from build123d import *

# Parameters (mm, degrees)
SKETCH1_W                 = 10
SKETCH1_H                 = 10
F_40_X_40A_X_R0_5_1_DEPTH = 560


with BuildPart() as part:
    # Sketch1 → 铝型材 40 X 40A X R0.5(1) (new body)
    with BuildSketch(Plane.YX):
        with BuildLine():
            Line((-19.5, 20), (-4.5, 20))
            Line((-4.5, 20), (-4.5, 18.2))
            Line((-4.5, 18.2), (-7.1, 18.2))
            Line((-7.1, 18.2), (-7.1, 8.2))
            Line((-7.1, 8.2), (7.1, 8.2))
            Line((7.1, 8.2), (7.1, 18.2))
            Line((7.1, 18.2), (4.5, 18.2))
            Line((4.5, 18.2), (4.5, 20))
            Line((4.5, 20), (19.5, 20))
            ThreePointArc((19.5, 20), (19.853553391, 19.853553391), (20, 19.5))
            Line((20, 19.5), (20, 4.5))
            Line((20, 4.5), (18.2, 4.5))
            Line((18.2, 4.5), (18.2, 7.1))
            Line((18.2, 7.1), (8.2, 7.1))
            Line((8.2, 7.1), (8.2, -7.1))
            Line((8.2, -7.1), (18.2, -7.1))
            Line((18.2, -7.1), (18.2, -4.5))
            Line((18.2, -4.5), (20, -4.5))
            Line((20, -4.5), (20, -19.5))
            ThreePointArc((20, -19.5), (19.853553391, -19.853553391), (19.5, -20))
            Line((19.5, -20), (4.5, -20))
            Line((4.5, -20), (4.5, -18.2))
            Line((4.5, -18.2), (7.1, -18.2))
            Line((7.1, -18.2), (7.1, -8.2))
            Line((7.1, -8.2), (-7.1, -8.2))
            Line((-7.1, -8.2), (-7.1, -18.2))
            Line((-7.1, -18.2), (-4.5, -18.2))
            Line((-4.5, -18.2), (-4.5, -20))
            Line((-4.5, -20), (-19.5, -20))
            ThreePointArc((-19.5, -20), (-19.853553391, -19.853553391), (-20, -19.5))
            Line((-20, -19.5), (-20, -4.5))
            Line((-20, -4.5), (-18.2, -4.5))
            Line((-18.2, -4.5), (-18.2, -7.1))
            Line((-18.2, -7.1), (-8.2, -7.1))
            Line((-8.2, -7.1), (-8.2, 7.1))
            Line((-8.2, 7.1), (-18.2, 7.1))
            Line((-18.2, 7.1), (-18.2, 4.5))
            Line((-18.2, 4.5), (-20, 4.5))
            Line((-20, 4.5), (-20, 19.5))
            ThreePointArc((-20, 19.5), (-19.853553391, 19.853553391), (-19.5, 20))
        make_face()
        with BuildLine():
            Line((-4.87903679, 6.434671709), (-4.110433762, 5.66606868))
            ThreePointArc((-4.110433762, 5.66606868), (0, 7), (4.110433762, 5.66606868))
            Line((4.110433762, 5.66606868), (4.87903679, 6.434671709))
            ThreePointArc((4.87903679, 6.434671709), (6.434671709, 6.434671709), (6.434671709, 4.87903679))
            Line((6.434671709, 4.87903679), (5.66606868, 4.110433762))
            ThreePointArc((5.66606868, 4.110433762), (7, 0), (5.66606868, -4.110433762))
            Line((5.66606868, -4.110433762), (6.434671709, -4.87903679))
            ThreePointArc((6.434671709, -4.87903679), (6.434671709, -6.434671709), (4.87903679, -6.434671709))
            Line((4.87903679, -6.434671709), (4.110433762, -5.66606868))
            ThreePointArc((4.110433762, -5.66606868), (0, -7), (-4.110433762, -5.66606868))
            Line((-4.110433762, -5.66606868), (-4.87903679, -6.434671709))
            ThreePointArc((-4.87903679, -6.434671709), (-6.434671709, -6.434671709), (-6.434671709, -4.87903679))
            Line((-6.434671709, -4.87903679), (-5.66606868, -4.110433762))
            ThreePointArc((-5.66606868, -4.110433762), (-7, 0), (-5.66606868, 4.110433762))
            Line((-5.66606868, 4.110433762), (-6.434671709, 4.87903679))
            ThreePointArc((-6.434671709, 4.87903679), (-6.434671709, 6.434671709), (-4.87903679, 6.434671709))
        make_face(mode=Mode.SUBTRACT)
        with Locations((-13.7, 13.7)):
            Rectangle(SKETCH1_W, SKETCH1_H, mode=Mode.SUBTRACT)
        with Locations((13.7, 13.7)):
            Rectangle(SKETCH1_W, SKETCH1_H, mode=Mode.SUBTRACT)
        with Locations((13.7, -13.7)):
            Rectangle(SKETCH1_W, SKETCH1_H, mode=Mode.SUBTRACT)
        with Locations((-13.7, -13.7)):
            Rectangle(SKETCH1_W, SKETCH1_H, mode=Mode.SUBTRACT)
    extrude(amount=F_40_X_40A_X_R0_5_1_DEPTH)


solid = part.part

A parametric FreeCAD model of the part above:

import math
import FreeCAD as App
import Part
import Sketcher
from FreeCAD import Vector
Q = App.Units.Quantity

doc = App.newDocument("Part")
body = doc.addObject("PartDesign::Body", "Body")

# Sketch on XY plane
sketch1 = doc.addObject("Sketcher::SketchObject", "Sketch")
body.addObject(sketch1)
sketch1.AttachmentSupport = (doc.XY_Plane, [""])
sketch1.MapMode = "FlatFace"
sketch1.addGeometry(Part.LineSegment(Vector(20, -4.5, 0), Vector(20, -19.5, 0)), False)
sketch1.addGeometry(Part.ArcOfCircle(Part.Circle(Vector(19.5, -19.5, 0), Vector(0, 0, 1), 0.5), math.radians(-90), math.radians(0)), False)
sketch1.addGeometry(Part.LineSegment(Vector(19.5, -20, 0), Vector(4.5, -20, 0)), False)
sketch1.addGeometry(Part.LineSegment(Vector(4.5, -20, 0), Vector(4.5, -18.2, 0)), False)
sketch1.addGeometry(Part.LineSegment(Vector(4.5, -18.2, 0), Vector(7.1, -18.2, 0)), False)
sketch1.addGeometry(Part.LineSegment(Vector(7.1, -18.2, 0), Vector(7.1, -8.2, 0)), False)
sketch1.addGeometry(Part.LineSegment(Vector(7.1, -8.2, 0), Vector(-7.1, -8.2, 0)), False)
sketch1.addGeometry(Part.LineSegment(Vector(-7.1, -8.2, 0), Vector(-7.1, -18.2, 0)), False)
sketch1.addGeometry(Part.LineSegment(Vector(-7.1, -18.2, 0), Vector(-4.5, -18.2, 0)), False)
sketch1.addGeometry(Part.LineSegment(Vector(-4.5, -18.2, 0), Vector(-4.5, -20, 0)), False)
sketch1.addGeometry(Part.LineSegment(Vector(-4.5, -20, 0), Vector(-19.5, -20, 0)), False)
sketch1.addGeometry(Part.ArcOfCircle(Part.Circle(Vector(-19.5, -19.5, 0), Vector(0, 0, 1), 0.5), math.radians(180), math.radians(270)), False)
sketch1.addGeometry(Part.LineSegment(Vector(-20, -19.5, 0), Vector(-20, -4.5, 0)), False)
sketch1.addGeometry(Part.LineSegment(Vector(-20, -4.5, 0), Vector(-18.2, -4.5, 0)), False)
sketch1.addGeometry(Part.LineSegment(Vector(-18.2, -4.5, 0), Vector(-18.2, -7.1, 0)), False)
sketch1.addGeometry(Part.LineSegment(Vector(-18.2, -7.1, 0), Vector(-8.2, -7.1, 0)), False)
sketch1.addGeometry(Part.LineSegment(Vector(-8.2, -7.1, 0), Vector(-8.2, 7.1, 0)), False)
sketch1.addGeometry(Part.LineSegment(Vector(-8.2, 7.1, 0), Vector(-18.2, 7.1, 0)), False)
sketch1.addGeometry(Part.LineSegment(Vector(-18.2, 7.1, 0), Vector(-18.2, 4.5, 0)), False)
sketch1.addGeometry(Part.LineSegment(Vector(-18.2, 4.5, 0), Vector(-20, 4.5, 0)), False)
sketch1.addGeometry(Part.LineSegment(Vector(-20, 4.5, 0), Vector(-20, 19.5, 0)), False)
sketch1.addGeometry(Part.ArcOfCircle(Part.Circle(Vector(-19.5, 19.5, 0), Vector(0, 0, 1), 0.5), math.radians(90), math.radians(180)), False)
sketch1.addGeometry(Part.LineSegment(Vector(-19.5, 20, 0), Vector(-4.5, 20, 0)), False)
sketch1.addGeometry(Part.LineSegment(Vector(-4.5, 20, 0), Vector(-4.5, 18.2, 0)), False)
sketch1.addGeometry(Part.LineSegment(Vector(-4.5, 18.2, 0), Vector(-7.1, 18.2, 0)), False)
sketch1.addGeometry(Part.LineSegment(Vector(-7.1, 18.2, 0), Vector(-7.1, 8.2, 0)), False)
sketch1.addGeometry(Part.LineSegment(Vector(-7.1, 8.2, 0), Vector(7.1, 8.2, 0)), False)
sketch1.addGeometry(Part.LineSegment(Vector(7.1, 8.2, 0), Vector(7.1, 18.2, 0)), False)
sketch1.addGeometry(Part.LineSegment(Vector(7.1, 18.2, 0), Vector(4.5, 18.2, 0)), False)
sketch1.addGeometry(Part.LineSegment(Vector(4.5, 18.2, 0), Vector(4.5, 20, 0)), False)
sketch1.addGeometry(Part.LineSegment(Vector(4.5, 20, 0), Vector(19.5, 20, 0)), False)
sketch1.addGeometry(Part.ArcOfCircle(Part.Circle(Vector(19.5, 19.5, 0), Vector(0, 0, 1), 0.5), math.radians(0), math.radians(90)), False)
sketch1.addGeometry(Part.LineSegment(Vector(20, 19.5, 0), Vector(20, 4.5, 0)), False)
sketch1.addGeometry(Part.LineSegment(Vector(20, 4.5, 0), Vector(18.2, 4.5, 0)), False)
sketch1.addGeometry(Part.LineSegment(Vector(18.2, 4.5, 0), Vector(18.2, 7.1, 0)), False)
sketch1.addGeometry(Part.LineSegment(Vector(18.2, 7.1, 0), Vector(8.2, 7.1, 0)), False)
sketch1.addGeometry(Part.LineSegment(Vector(8.2, 7.1, 0), Vector(8.2, -7.1, 0)), False)
sketch1.addGeometry(Part.LineSegment(Vector(8.2, -7.1, 0), Vector(18.2, -7.1, 0)), False)
sketch1.addGeometry(Part.LineSegment(Vector(18.2, -7.1, 0), Vector(18.2, -4.5, 0)), False)
sketch1.addGeometry(Part.LineSegment(Vector(18.2, -4.5, 0), Vector(20, -4.5, 0)), False)
sketch1.addGeometry(Part.LineSegment(Vector(-18.7, 8.7, 0), Vector(-8.7, 8.7, 0)), False)
sketch1.addGeometry(Part.LineSegment(Vector(-8.7, 8.7, 0), Vector(-8.7, 18.7, 0)), False)
sketch1.addGeometry(Part.LineSegment(Vector(-8.7, 18.7, 0), Vector(-18.7, 18.7, 0)), False)
sketch1.addGeometry(Part.LineSegment(Vector(-18.7, 18.7, 0), Vector(-18.7, 8.7, 0)), False)
sketch1.addGeometry(Part.LineSegment(Vector(6.434672, -4.879037, 0), Vector(5.666069, -4.110434, 0)), False)
sketch1.addGeometry(Part.ArcOfCircle(Part.Circle(Vector(0, 0, 0), Vector(0, 0, 1), 7), math.radians(-35.958904), math.radians(35.958904)), False)
sketch1.addGeometry(Part.LineSegment(Vector(5.666069, 4.110434, 0), Vector(6.434672, 4.879037, 0)), False)
sketch1.addGeometry(Part.ArcOfCircle(Part.Circle(Vector(5.656854, 5.656854, 0), Vector(0, 0, 1), 1.1), math.radians(-45), math.radians(135)), False)
sketch1.addGeometry(Part.LineSegment(Vector(4.879037, 6.434672, 0), Vector(4.110434, 5.666069, 0)), False)
sketch1.addGeometry(Part.ArcOfCircle(Part.Circle(Vector(0, 0, 0), Vector(0, 0, 1), 7), math.radians(54.041096), math.radians(125.958904)), False)
sketch1.addGeometry(Part.LineSegment(Vector(-4.110434, 5.666069, 0), Vector(-4.879037, 6.434672, 0)), False)
sketch1.addGeometry(Part.ArcOfCircle(Part.Circle(Vector(-5.656854, 5.656854, 0), Vector(0, 0, 1), 1.1), math.radians(45), math.radians(225)), False)
sketch1.addGeometry(Part.LineSegment(Vector(-6.434672, 4.879037, 0), Vector(-5.666069, 4.110434, 0)), False)
sketch1.addGeometry(Part.ArcOfCircle(Part.Circle(Vector(0, 0, 0), Vector(0, 0, 1), 7), math.radians(144.041096), math.radians(215.958904)), False)
sketch1.addGeometry(Part.LineSegment(Vector(-5.666069, -4.110434, 0), Vector(-6.434672, -4.879037, 0)), False)
sketch1.addGeometry(Part.ArcOfCircle(Part.Circle(Vector(-5.656854, -5.656854, 0), Vector(0, 0, 1), 1.1), math.radians(135), math.radians(315)), False)
sketch1.addGeometry(Part.LineSegment(Vector(-4.879037, -6.434672, 0), Vector(-4.110434, -5.666069, 0)), False)
sketch1.addGeometry(Part.ArcOfCircle(Part.Circle(Vector(0, 0, 0), Vector(0, 0, 1), 7), math.radians(-125.958904), math.radians(-54.041096)), False)
sketch1.addGeometry(Part.LineSegment(Vector(4.110434, -5.666069, 0), Vector(4.879037, -6.434672, 0)), False)
sketch1.addGeometry(Part.ArcOfCircle(Part.Circle(Vector(5.656854, -5.656854, 0), Vector(0, 0, 1), 1.1), math.radians(-135), math.radians(45)), False)
sketch1.addGeometry(Part.LineSegment(Vector(-18.7, -18.7, 0), Vector(-8.7, -18.7, 0)), False)
sketch1.addGeometry(Part.LineSegment(Vector(-8.7, -18.7, 0), Vector(-8.7, -8.7, 0)), False)
sketch1.addGeometry(Part.LineSegment(Vector(-8.7, -8.7, 0), Vector(-18.7, -8.7, 0)), False)
sketch1.addGeometry(Part.LineSegment(Vector(-18.7, -8.7, 0), Vector(-18.7, -18.7, 0)), False)
sketch1.addGeometry(Part.LineSegment(Vector(8.7, 8.7, 0), Vector(18.7, 8.7, 0)), False)
sketch1.addGeometry(Part.LineSegment(Vector(18.7, 8.7, 0), Vector(18.7, 18.7, 0)), False)
sketch1.addGeometry(Part.LineSegment(Vector(18.7, 18.7, 0), Vector(8.7, 18.7, 0)), False)
sketch1.addGeometry(Part.LineSegment(Vector(8.7, 18.7, 0), Vector(8.7, 8.7, 0)), False)
sketch1.addGeometry(Part.LineSegment(Vector(8.7, -18.7, 0), Vector(18.7, -18.7, 0)), False)
sketch1.addGeometry(Part.LineSegment(Vector(18.7, -18.7, 0), Vector(18.7, -8.7, 0)), False)
sketch1.addGeometry(Part.LineSegment(Vector(18.7, -8.7, 0), Vector(8.7, -8.7, 0)), False)
sketch1.addGeometry(Part.LineSegment(Vector(8.7, -8.7, 0), Vector(8.7, -18.7, 0)), False)
sketch1.addConstraint(Sketcher.Constraint("Tangent", 0, 2, 1, 2))
sketch1.addConstraint(Sketcher.Constraint("Tangent", 1, 1, 2, 1))
sketch1.addConstraint(Sketcher.Constraint("Coincident", 2, 2, 3, 1))
sketch1.addConstraint(Sketcher.Constraint("Coincident", 3, 2, 4, 1))
sketch1.addConstraint(Sketcher.Constraint("Coincident", 4, 2, 5, 1))
sketch1.addConstraint(Sketcher.Constraint("Coincident", 5, 2, 6, 1))
sketch1.addConstraint(Sketcher.Constraint("Coincident", 6, 2, 7, 1))
sketch1.addConstraint(Sketcher.Constraint("Coincident", 7, 2, 8, 1))
sketch1.addConstraint(Sketcher.Constraint("Coincident", 8, 2, 9, 1))
sketch1.addConstraint(Sketcher.Constraint("Coincident", 9, 2, 10, 1))
sketch1.addConstraint(Sketcher.Constraint("Tangent", 10, 2, 11, 2))
sketch1.addConstraint(Sketcher.Constraint("Tangent", 11, 1, 12, 1))
sketch1.addConstraint(Sketcher.Constraint("Coincident", 12, 2, 13, 1))
sketch1.addConstraint(Sketcher.Constraint("Coincident", 13, 2, 14, 1))
sketch1.addConstraint(Sketcher.Constraint("Coincident", 14, 2, 15, 1))
sketch1.addConstraint(Sketcher.Constraint("Coincident", 15, 2, 16, 1))
sketch1.addConstraint(Sketcher.Constraint("Coincident", 16, 2, 17, 1))
sketch1.addConstraint(Sketcher.Constraint("Coincident", 17, 2, 18, 1))
sketch1.addConstraint(Sketcher.Constraint("Coincident", 18, 2, 19, 1))
sketch1.addConstraint(Sketcher.Constraint("Coincident", 19, 2, 20, 1))
sketch1.addConstraint(Sketcher.Constraint("Tangent", 20, 2, 21, 2))
sketch1.addConstraint(Sketcher.Constraint("Tangent", 21, 1, 22, 1))
sketch1.addConstraint(Sketcher.Constraint("Coincident", 22, 2, 23, 1))
sketch1.addConstraint(Sketcher.Constraint("Coincident", 23, 2, 24, 1))
sketch1.addConstraint(Sketcher.Constraint("Coincident", 24, 2, 25, 1))
sketch1.addConstraint(Sketcher.Constraint("Coincident", 25, 2, 26, 1))
sketch1.addConstraint(Sketcher.Constraint("Coincident", 26, 2, 27, 1))
sketch1.addConstraint(Sketcher.Constraint("Coincident", 27, 2, 28, 1))
sketch1.addConstraint(Sketcher.Constraint("Coincident", 28, 2, 29, 1))
sketch1.addConstraint(Sketcher.Constraint("Coincident", 29, 2, 30, 1))
sketch1.addConstraint(Sketcher.Constraint("Tangent", 30, 2, 31, 2))
sketch1.addConstraint(Sketcher.Constraint("Tangent", 31, 1, 32, 1))
sketch1.addConstraint(Sketcher.Constraint("Coincident", 32, 2, 33, 1))
sketch1.addConstraint(Sketcher.Constraint("Coincident", 33, 2, 34, 1))
sketch1.addConstraint(Sketcher.Constraint("Coincident", 34, 2, 35, 1))
sketch1.addConstraint(Sketcher.Constraint("Coincident", 35, 2, 36, 1))
sketch1.addConstraint(Sketcher.Constraint("Coincident", 36, 2, 37, 1))
sketch1.addConstraint(Sketcher.Constraint("Coincident", 37, 2, 38, 1))
sketch1.addConstraint(Sketcher.Constraint("Coincident", 38, 2, 39, 1))
sketch1.addConstraint(Sketcher.Constraint("Coincident", 39, 2, 0, 1))
sketch1.addConstraint(Sketcher.Constraint("Coincident", 40, 2, 41, 1))
sketch1.addConstraint(Sketcher.Constraint("Coincident", 41, 2, 42, 1))
sketch1.addConstraint(Sketcher.Constraint("Coincident", 42, 2, 43, 1))
sketch1.addConstraint(Sketcher.Constraint("Coincident", 43, 2, 40, 1))
sketch1.addConstraint(Sketcher.Constraint("Coincident", 44, 2, 45, 1))
sketch1.addConstraint(Sketcher.Constraint("Coincident", 45, 2, 46, 1))
sketch1.addConstraint(Sketcher.Constraint("Tangent", 46, 2, 47, 1))
sketch1.addConstraint(Sketcher.Constraint("Tangent", 47, 2, 48, 1))
sketch1.addConstraint(Sketcher.Constraint("Coincident", 48, 2, 49, 1))
sketch1.addConstraint(Sketcher.Constraint("Coincident", 49, 2, 50, 1))
sketch1.addConstraint(Sketcher.Constraint("Tangent", 50, 2, 51, 1))
sketch1.addConstraint(Sketcher.Constraint("Tangent", 51, 2, 52, 1))
sketch1.addConstraint(Sketcher.Constraint("Coincident", 52, 2, 53, 1))
sketch1.addConstraint(Sketcher.Constraint("Coincident", 53, 2, 54, 1))
sketch1.addConstraint(Sketcher.Constraint("Tangent", 54, 2, 55, 1))
sketch1.addConstraint(Sketcher.Constraint("Tangent", 55, 2, 56, 1))
sketch1.addConstraint(Sketcher.Constraint("Coincident", 56, 2, 57, 1))
sketch1.addConstraint(Sketcher.Constraint("Coincident", 57, 2, 58, 1))
sketch1.addConstraint(Sketcher.Constraint("Tangent", 58, 2, 59, 1))
sketch1.addConstraint(Sketcher.Constraint("Tangent", 59, 2, 44, 1))
sketch1.addConstraint(Sketcher.Constraint("Coincident", 60, 2, 61, 1))
sketch1.addConstraint(Sketcher.Constraint("Coincident", 61, 2, 62, 1))
sketch1.addConstraint(Sketcher.Constraint("Coincident", 62, 2, 63, 1))
sketch1.addConstraint(Sketcher.Constraint("Coincident", 63, 2, 60, 1))
sketch1.addConstraint(Sketcher.Constraint("Coincident", 64, 2, 65, 1))
sketch1.addConstraint(Sketcher.Constraint("Coincident", 65, 2, 66, 1))
sketch1.addConstraint(Sketcher.Constraint("Coincident", 66, 2, 67, 1))
sketch1.addConstraint(Sketcher.Constraint("Coincident", 67, 2, 64, 1))
sketch1.addConstraint(Sketcher.Constraint("Coincident", 68, 2, 69, 1))
sketch1.addConstraint(Sketcher.Constraint("Coincident", 69, 2, 70, 1))
sketch1.addConstraint(Sketcher.Constraint("Coincident", 70, 2, 71, 1))
sketch1.addConstraint(Sketcher.Constraint("Coincident", 71, 2, 68, 1))
sketch1.addConstraint(Sketcher.Constraint("Vertical", 0))
sketch1.addConstraint(Sketcher.Constraint("Horizontal", 2))
sketch1.addConstraint(Sketcher.Constraint("Vertical", 3))
sketch1.addConstraint(Sketcher.Constraint("Horizontal", 4))
sketch1.addConstraint(Sketcher.Constraint("Vertical", 5))
sketch1.addConstraint(Sketcher.Constraint("Horizontal", 6))
sketch1.addConstraint(Sketcher.Constraint("Vertical", 7))
sketch1.addConstraint(Sketcher.Constraint("Horizontal", 8))
sketch1.addConstraint(Sketcher.Constraint("Vertical", 9))
sketch1.addConstraint(Sketcher.Constraint("Horizontal", 10))
sketch1.addConstraint(Sketcher.Constraint("Vertical", 12))
sketch1.addConstraint(Sketcher.Constraint("Horizontal", 13))
sketch1.addConstraint(Sketcher.Constraint("Vertical", 14))
sketch1.addConstraint(Sketcher.Constraint("Horizontal", 15))
sketch1.addConstraint(Sketcher.Constraint("Vertical", 16))
sketch1.addConstraint(Sketcher.Constraint("Horizontal", 17))
sketch1.addConstraint(Sketcher.Constraint("Vertical", 18))
sketch1.addConstraint(Sketcher.Constraint("Horizontal", 19))
sketch1.addConstraint(Sketcher.Constraint("Vertical", 20))
sketch1.addConstraint(Sketcher.Constraint("Horizontal", 22))
sketch1.addConstraint(Sketcher.Constraint("Vertical", 23))
sketch1.addConstraint(Sketcher.Constraint("Horizontal", 24))
sketch1.addConstraint(Sketcher.Constraint("Vertical", 25))
sketch1.addConstraint(Sketcher.Constraint("Horizontal", 26))
sketch1.addConstraint(Sketcher.Constraint("Vertical", 27))
sketch1.addConstraint(Sketcher.Constraint("Horizontal", 28))
sketch1.addConstraint(Sketcher.Constraint("Vertical", 29))
sketch1.addConstraint(Sketcher.Constraint("Horizontal", 30))
sketch1.addConstraint(Sketcher.Constraint("Vertical", 32))
sketch1.addConstraint(Sketcher.Constraint("Horizontal", 33))
sketch1.addConstraint(Sketcher.Constraint("Vertical", 34))
sketch1.addConstraint(Sketcher.Constraint("Horizontal", 35))
sketch1.addConstraint(Sketcher.Constraint("Vertical", 36))
sketch1.addConstraint(Sketcher.Constraint("Horizontal", 37))
sketch1.addConstraint(Sketcher.Constraint("Vertical", 38))
sketch1.addConstraint(Sketcher.Constraint("Horizontal", 39))
sketch1.addConstraint(Sketcher.Constraint("Horizontal", 40))
sketch1.addConstraint(Sketcher.Constraint("Vertical", 41))
sketch1.addConstraint(Sketcher.Constraint("Horizontal", 42))
sketch1.addConstraint(Sketcher.Constraint("Vertical", 43))
sketch1.addConstraint(Sketcher.Constraint("Horizontal", 60))
sketch1.addConstraint(Sketcher.Constraint("Vertical", 61))
sketch1.addConstraint(Sketcher.Constraint("Horizontal", 62))
sketch1.addConstraint(Sketcher.Constraint("Vertical", 63))
sketch1.addConstraint(Sketcher.Constraint("Horizontal", 64))
sketch1.addConstraint(Sketcher.Constraint("Vertical", 65))
sketch1.addConstraint(Sketcher.Constraint("Horizontal", 66))
sketch1.addConstraint(Sketcher.Constraint("Vertical", 67))
sketch1.addConstraint(Sketcher.Constraint("Horizontal", 68))
sketch1.addConstraint(Sketcher.Constraint("Vertical", 69))
sketch1.addConstraint(Sketcher.Constraint("Horizontal", 70))
sketch1.addConstraint(Sketcher.Constraint("Vertical", 71))
sketch1.addConstraint(Sketcher.Constraint("Coincident", 45, 3, -1, 1))
sketch1.addConstraint(Sketcher.Constraint("Coincident", 49, 3, -1, 1))
sketch1.addConstraint(Sketcher.Constraint("Coincident", 53, 3, -1, 1))
sketch1.addConstraint(Sketcher.Constraint("Coincident", 57, 3, -1, 1))
sketch1.addConstraint(Sketcher.Constraint("Equal", 1, 11))
sketch1.addConstraint(Sketcher.Constraint("Equal", 11, 21))
sketch1.addConstraint(Sketcher.Constraint("Equal", 21, 31))
sketch1.addConstraint(Sketcher.Constraint("Equal", 45, 49))
sketch1.addConstraint(Sketcher.Constraint("Equal", 47, 51))
sketch1.addConstraint(Sketcher.Constraint("Equal", 49, 53))
sketch1.addConstraint(Sketcher.Constraint("Equal", 51, 55))
sketch1.addConstraint(Sketcher.Constraint("Equal", 53, 57))
sketch1.addConstraint(Sketcher.Constraint("Equal", 55, 59))
sketch1.addConstraint(Sketcher.Constraint("Symmetric", 1, 3, 21, 3, -1, 1))
sketch1.addConstraint(Sketcher.Constraint("Symmetric", 11, 3, 31, 3, -1, 1))
sketch1.addConstraint(Sketcher.Constraint("Symmetric", 47, 3, 55, 3, -1, 1))
sketch1.addConstraint(Sketcher.Constraint("Symmetric", 51, 3, 59, 3, -1, 1))
sketch1.addConstraint(Sketcher.Constraint("Symmetric", 3, 2, 23, 2, -1, 1))
sketch1.addConstraint(Sketcher.Constraint("Symmetric", 5, 2, 25, 2, -1, 1))
sketch1.addConstraint(Sketcher.Constraint("Symmetric", 7, 2, 27, 2, -1, 1))
sketch1.addConstraint(Sketcher.Constraint("Symmetric", 13, 2, 33, 2, -1, 1))
sketch1.addConstraint(Sketcher.Constraint("Symmetric", 15, 2, 35, 2, -1, 1))
sketch1.addConstraint(Sketcher.Constraint("Symmetric", 17, 2, 37, 2, -1, 1))
sketch1.addConstraint(Sketcher.Constraint("Symmetric", 62, 2, 64, 2, -1, 1))
sketch1.addConstraint(Sketcher.Constraint("Symmetric", 60, 2, 66, 2, -1, 1))
sketch1.addConstraint(Sketcher.Constraint("Symmetric", 42, 2, 68, 2, -1, 1))
sketch1.addConstraint(Sketcher.Constraint("Symmetric", 40, 2, 70, 2, -1, 1))
sketch1.addConstraint(Sketcher.Constraint("Symmetric", 1, 3, 11, 3, -2))
sketch1.addConstraint(Sketcher.Constraint("Symmetric", 47, 3, 51, 3, -2))
sketch1.addConstraint(Sketcher.Constraint("Symmetric", 4, 2, 7, 2, -2))
sketch1.addConstraint(Sketcher.Constraint("Symmetric", 18, 2, 33, 2, -2))
sketch1.addConstraint(Sketcher.Constraint("Symmetric", 43, 2, 64, 2, -2))
sketch1.addConstraint(Sketcher.Constraint("Symmetric", 41, 2, 66, 2, -2))
sketch1.addConstraint(Sketcher.Constraint("Perpendicular", 44, 46))
sketch1.addConstraint(Sketcher.Constraint("Parallel", 46, 48))
sketch1.addConstraint(Sketcher.Constraint("Perpendicular", 48, 50))
sketch1.addConstraint(Sketcher.Constraint("Parallel", 50, 52))
sketch1.addConstraint(Sketcher.Constraint("Perpendicular", 52, 54))
sketch1.addConstraint(Sketcher.Constraint("Parallel", 54, 56))
sketch1.addConstraint(Sketcher.Constraint("Perpendicular", 56, 58))
sketch1.addConstraint(Sketcher.Constraint("Horizontal", 17, 2, 34, 2))
sketch1.addConstraint(Sketcher.Constraint("Horizontal", 13, 2, 38, 2))
sketch1.addConstraint(Sketcher.Constraint("Horizontal", 48, 2, 49, 2))
sketch1.addConstraint(Sketcher.Constraint("Vertical", 9, 2, 22, 2))
sketch1.addConstraint(Sketcher.Constraint("Vertical", 3, 2, 28, 2))
sketch1.addConstraint(Sketcher.Constraint("Equal", 37, 40))
sketch1.addConstraint(Sketcher.Constraint("Equal", 30, 0))
sketch1.addConstraint(Sketcher.Constraint("Equal", 39, 3))
sketch1.addConstraint(Sketcher.Constraint("Equal", 70, 5))
sketch1.addConstraint(Sketcher.Constraint("Equal", 28, 14))
sketch1.addConstraint(Sketcher.Constraint("Equal", 26, 16))
sketch1.addConstraint(Sketcher.Constraint("Equal", 27, 41))
sketch1.addConstraint(Sketcher.Constraint("Equal", 46, 48))
sketch1.addConstraint(Sketcher.Constraint("Radius", 45, Q("7 mm")))
sketch1.addConstraint(Sketcher.Constraint("Radius", 1, Q("0.5 mm")))
sketch1.addConstraint(Sketcher.Constraint("Radius", 47, Q("1.1 mm")))
sketch1.addConstraint(Sketcher.Constraint("DistanceX", 2, 2, 2, 1, Q("15 mm")))
sketch1.addConstraint(Sketcher.Constraint("DistanceX", 15, 1, 15, 2, Q("10 mm")))
sketch1.addConstraint(Sketcher.Constraint("DistanceX", 4, 1, 4, 2, Q("2.6 mm")))
sketch1.addConstraint(Sketcher.Constraint("DistanceX", 6, 2, 6, 1, Q("14.2 mm")))
sketch1.addConstraint(Sketcher.Constraint("DistanceX", 13, 1, 13, 2, Q("1.8 mm")))
sketch1.addConstraint(Sketcher.Constraint("DistanceX", 40, 2, -1, 1, Q("8.7 mm")))
sketch1.addConstraint(Sketcher.Constraint("DistanceY", -1, 1, 40, 2, Q("8.7 mm")))
sketch1.addConstraint(Sketcher.Constraint("Distance", 44, Q("1.086969 mm")))
pad1 = doc.addObject("PartDesign::Pad", "Pad")
body.addObject(pad1)
pad1.Profile = sketch1
pad1.Length = 560
pad1.Reversed = True

doc.recompute()
